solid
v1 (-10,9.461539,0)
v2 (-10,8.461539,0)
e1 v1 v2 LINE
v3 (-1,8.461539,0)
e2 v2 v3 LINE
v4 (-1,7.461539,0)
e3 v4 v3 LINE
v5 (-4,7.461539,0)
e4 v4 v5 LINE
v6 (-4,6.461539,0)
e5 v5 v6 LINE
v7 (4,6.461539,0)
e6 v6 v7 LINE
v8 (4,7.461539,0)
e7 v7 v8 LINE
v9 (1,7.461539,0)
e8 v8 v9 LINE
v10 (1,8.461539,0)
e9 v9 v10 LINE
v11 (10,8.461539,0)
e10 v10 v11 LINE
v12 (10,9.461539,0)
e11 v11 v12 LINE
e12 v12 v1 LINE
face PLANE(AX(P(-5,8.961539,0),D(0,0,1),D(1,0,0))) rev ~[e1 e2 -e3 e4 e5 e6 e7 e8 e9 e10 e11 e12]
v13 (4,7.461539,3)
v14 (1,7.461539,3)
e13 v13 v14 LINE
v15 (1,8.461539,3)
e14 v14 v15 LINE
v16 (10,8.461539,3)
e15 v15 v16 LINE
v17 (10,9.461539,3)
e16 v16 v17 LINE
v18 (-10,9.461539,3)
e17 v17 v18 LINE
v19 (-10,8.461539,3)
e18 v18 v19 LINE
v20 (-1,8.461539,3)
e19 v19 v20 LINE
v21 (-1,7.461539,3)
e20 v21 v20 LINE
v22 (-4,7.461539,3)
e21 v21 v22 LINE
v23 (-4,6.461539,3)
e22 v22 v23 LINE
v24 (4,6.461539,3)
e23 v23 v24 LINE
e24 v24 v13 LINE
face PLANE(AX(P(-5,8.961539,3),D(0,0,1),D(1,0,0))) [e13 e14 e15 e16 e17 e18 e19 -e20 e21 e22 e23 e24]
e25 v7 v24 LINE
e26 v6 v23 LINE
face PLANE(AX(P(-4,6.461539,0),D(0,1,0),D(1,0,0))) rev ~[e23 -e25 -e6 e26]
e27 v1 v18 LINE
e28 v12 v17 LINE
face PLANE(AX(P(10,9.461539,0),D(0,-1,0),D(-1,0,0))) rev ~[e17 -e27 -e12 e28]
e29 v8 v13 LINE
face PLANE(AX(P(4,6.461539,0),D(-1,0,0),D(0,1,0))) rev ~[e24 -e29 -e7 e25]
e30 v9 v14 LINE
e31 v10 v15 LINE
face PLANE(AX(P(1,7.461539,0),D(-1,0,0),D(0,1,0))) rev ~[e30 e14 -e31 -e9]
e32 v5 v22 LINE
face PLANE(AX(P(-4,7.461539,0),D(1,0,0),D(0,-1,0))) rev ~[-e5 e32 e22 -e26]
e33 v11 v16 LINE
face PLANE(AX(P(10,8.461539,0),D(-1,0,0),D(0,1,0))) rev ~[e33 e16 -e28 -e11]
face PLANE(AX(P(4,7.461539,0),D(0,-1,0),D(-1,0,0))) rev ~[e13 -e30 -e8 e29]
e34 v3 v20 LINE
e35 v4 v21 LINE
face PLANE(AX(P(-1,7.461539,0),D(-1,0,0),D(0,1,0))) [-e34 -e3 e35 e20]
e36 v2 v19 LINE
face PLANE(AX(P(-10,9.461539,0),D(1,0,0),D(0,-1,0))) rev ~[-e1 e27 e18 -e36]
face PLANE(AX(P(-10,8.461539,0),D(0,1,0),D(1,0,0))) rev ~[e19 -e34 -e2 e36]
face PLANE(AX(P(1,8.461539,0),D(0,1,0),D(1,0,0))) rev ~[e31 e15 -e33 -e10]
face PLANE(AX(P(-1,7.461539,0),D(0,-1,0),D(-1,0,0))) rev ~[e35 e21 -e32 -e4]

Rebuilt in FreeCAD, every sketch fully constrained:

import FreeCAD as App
import Part
import Sketcher
from FreeCAD import Vector
Q = App.Units.Quantity

doc = App.newDocument("Part")
body = doc.addObject("PartDesign::Body", "Body")

sketch1 = doc.addObject("Sketcher::SketchObject", "Sketch")
body.addObject(sketch1)
sketch1.AttachmentSupport = (doc.XY_Plane, [""])
sketch1.MapMode = "FlatFace"
sketch1.addGeometry(Part.LineSegment(Vector(-10, 9.5, 0), Vector(-10, 8.5, 0)), False)
sketch1.addGeometry(Part.LineSegment(Vector(-10, 8.5, 0), Vector(-1, 8.5, 0)), False)
sketch1.addGeometry(Part.LineSegment(Vector(-1, 8.5, 0), Vector(-1, 7.5, 0)), False)
sketch1.addGeometry(Part.LineSegment(Vector(-1, 7.5, 0), Vector(-4, 7.5, 0)), False)
sketch1.addGeometry(Part.LineSegment(Vector(-4, 7.5, 0), Vector(-4, 6.5, 0)), False)
sketch1.addGeometry(Part.LineSegment(Vector(-4, 6.5, 0), Vector(4, 6.5, 0)), False)
sketch1.addGeometry(Part.LineSegment(Vector(4, 6.5, 0), Vector(4, 7.5, 0)), False)
sketch1.addGeometry(Part.LineSegment(Vector(4, 7.5, 0), Vector(1, 7.5, 0)), False)
sketch1.addGeometry(Part.LineSegment(Vector(1, 7.5, 0), Vector(1, 8.5, 0)), False)
sketch1.addGeometry(Part.LineSegment(Vector(1, 8.5, 0), Vector(10, 8.5, 0)), False)
sketch1.addGeometry(Part.LineSegment(Vector(10, 8.5, 0), Vector(10, 9.5, 0)), False)
sketch1.addGeometry(Part.LineSegment(Vector(10, 9.5, 0), Vector(-10, 9.5, 0)), False)
sketch1.addConstraint(Sketcher.Constraint("Coincident", 0, 2, 1, 1))
sketch1.addConstraint(Sketcher.Constraint("Coincident", 1, 2, 2, 1))
sketch1.addConstraint(Sketcher.Constraint("Coincident", 2, 2, 3, 1))
sketch1.addConstraint(Sketcher.Constraint("Coincident", 3, 2, 4, 1))
sketch1.addConstraint(Sketcher.Constraint("Coincident", 4, 2, 5, 1))
sketch1.addConstraint(Sketcher.Constraint("Coincident", 5, 2, 6, 1))
sketch1.addConstraint(Sketcher.Constraint("Coincident", 6, 2, 7, 1))
sketch1.addConstraint(Sketcher.Constraint("Coincident", 7, 2, 8, 1))
sketch1.addConstraint(Sketcher.Constraint("Coincident", 8, 2, 9, 1))
sketch1.addConstraint(Sketcher.Constraint("Coincident", 9, 2, 10, 1))
sketch1.addConstraint(Sketcher.Constraint("Coincident", 10, 2, 11, 1))
sketch1.addConstraint(Sketcher.Constraint("Coincident", 11, 2, 0, 1))
sketch1.addConstraint(Sketcher.Constraint("Vertical", 0))
sketch1.addConstraint(Sketcher.Constraint("Horizontal", 1))
sketch1.addConstraint(Sketcher.Constraint("Vertical", 2))
sketch1.addConstraint(Sketcher.Constraint("Horizontal", 3))
sketch1.addConstraint(Sketcher.Constraint("Vertical", 4))
sketch1.addConstraint(Sketcher.Constraint("Horizontal", 5))
sketch1.addConstraint(Sketcher.Constraint("Vertical", 6))
sketch1.addConstraint(Sketcher.Constraint("Horizontal", 7))
sketch1.addConstraint(Sketcher.Constraint("Vertical", 8))
sketch1.addConstraint(Sketcher.Constraint("Horizontal", 9))
sketch1.addConstraint(Sketcher.Constraint("Vertical", 10))
sketch1.addConstraint(Sketcher.Constraint("Horizontal", 11))
sketch1.addConstraint(Sketcher.Constraint("Symmetric", 3, 2, 6, 2, -2))
sketch1.addConstraint(Sketcher.Constraint("Symmetric", 1, 2, 8, 2, -2))
sketch1.addConstraint(Sketcher.Constraint("Equal", 1, 9))
sketch1.addConstraint(Sketcher.Constraint("Equal", 0, 2))
sketch1.addConstraint(Sketcher.Constraint("Equal", 2, 4))
sketch1.addConstraint(Sketcher.Constraint("DistanceX", 1, 1, 1, 2, Q("9 mm")))
sketch1.addConstraint(Sketcher.Constraint("DistanceX", 3, 2, 3, 1, Q("3 mm")))
sketch1.addConstraint(Sketcher.Constraint("DistanceX", 5, 1, 5, 2, Q("8 mm")))
sketch1.addConstraint(Sketcher.Constraint("DistanceY", 0, 2, 0, 1, Q("1 mm")))
sketch1.addConstraint(Sketcher.Constraint("DistanceY", -1, 1, 0, 2, Q("8.461539 mm")))
pad1 = doc.addObject("PartDesign::Pad", "Pad")
body.addObject(pad1)
pad1.Profile = sketch1
pad1.Length = 3

doc.recompute()
